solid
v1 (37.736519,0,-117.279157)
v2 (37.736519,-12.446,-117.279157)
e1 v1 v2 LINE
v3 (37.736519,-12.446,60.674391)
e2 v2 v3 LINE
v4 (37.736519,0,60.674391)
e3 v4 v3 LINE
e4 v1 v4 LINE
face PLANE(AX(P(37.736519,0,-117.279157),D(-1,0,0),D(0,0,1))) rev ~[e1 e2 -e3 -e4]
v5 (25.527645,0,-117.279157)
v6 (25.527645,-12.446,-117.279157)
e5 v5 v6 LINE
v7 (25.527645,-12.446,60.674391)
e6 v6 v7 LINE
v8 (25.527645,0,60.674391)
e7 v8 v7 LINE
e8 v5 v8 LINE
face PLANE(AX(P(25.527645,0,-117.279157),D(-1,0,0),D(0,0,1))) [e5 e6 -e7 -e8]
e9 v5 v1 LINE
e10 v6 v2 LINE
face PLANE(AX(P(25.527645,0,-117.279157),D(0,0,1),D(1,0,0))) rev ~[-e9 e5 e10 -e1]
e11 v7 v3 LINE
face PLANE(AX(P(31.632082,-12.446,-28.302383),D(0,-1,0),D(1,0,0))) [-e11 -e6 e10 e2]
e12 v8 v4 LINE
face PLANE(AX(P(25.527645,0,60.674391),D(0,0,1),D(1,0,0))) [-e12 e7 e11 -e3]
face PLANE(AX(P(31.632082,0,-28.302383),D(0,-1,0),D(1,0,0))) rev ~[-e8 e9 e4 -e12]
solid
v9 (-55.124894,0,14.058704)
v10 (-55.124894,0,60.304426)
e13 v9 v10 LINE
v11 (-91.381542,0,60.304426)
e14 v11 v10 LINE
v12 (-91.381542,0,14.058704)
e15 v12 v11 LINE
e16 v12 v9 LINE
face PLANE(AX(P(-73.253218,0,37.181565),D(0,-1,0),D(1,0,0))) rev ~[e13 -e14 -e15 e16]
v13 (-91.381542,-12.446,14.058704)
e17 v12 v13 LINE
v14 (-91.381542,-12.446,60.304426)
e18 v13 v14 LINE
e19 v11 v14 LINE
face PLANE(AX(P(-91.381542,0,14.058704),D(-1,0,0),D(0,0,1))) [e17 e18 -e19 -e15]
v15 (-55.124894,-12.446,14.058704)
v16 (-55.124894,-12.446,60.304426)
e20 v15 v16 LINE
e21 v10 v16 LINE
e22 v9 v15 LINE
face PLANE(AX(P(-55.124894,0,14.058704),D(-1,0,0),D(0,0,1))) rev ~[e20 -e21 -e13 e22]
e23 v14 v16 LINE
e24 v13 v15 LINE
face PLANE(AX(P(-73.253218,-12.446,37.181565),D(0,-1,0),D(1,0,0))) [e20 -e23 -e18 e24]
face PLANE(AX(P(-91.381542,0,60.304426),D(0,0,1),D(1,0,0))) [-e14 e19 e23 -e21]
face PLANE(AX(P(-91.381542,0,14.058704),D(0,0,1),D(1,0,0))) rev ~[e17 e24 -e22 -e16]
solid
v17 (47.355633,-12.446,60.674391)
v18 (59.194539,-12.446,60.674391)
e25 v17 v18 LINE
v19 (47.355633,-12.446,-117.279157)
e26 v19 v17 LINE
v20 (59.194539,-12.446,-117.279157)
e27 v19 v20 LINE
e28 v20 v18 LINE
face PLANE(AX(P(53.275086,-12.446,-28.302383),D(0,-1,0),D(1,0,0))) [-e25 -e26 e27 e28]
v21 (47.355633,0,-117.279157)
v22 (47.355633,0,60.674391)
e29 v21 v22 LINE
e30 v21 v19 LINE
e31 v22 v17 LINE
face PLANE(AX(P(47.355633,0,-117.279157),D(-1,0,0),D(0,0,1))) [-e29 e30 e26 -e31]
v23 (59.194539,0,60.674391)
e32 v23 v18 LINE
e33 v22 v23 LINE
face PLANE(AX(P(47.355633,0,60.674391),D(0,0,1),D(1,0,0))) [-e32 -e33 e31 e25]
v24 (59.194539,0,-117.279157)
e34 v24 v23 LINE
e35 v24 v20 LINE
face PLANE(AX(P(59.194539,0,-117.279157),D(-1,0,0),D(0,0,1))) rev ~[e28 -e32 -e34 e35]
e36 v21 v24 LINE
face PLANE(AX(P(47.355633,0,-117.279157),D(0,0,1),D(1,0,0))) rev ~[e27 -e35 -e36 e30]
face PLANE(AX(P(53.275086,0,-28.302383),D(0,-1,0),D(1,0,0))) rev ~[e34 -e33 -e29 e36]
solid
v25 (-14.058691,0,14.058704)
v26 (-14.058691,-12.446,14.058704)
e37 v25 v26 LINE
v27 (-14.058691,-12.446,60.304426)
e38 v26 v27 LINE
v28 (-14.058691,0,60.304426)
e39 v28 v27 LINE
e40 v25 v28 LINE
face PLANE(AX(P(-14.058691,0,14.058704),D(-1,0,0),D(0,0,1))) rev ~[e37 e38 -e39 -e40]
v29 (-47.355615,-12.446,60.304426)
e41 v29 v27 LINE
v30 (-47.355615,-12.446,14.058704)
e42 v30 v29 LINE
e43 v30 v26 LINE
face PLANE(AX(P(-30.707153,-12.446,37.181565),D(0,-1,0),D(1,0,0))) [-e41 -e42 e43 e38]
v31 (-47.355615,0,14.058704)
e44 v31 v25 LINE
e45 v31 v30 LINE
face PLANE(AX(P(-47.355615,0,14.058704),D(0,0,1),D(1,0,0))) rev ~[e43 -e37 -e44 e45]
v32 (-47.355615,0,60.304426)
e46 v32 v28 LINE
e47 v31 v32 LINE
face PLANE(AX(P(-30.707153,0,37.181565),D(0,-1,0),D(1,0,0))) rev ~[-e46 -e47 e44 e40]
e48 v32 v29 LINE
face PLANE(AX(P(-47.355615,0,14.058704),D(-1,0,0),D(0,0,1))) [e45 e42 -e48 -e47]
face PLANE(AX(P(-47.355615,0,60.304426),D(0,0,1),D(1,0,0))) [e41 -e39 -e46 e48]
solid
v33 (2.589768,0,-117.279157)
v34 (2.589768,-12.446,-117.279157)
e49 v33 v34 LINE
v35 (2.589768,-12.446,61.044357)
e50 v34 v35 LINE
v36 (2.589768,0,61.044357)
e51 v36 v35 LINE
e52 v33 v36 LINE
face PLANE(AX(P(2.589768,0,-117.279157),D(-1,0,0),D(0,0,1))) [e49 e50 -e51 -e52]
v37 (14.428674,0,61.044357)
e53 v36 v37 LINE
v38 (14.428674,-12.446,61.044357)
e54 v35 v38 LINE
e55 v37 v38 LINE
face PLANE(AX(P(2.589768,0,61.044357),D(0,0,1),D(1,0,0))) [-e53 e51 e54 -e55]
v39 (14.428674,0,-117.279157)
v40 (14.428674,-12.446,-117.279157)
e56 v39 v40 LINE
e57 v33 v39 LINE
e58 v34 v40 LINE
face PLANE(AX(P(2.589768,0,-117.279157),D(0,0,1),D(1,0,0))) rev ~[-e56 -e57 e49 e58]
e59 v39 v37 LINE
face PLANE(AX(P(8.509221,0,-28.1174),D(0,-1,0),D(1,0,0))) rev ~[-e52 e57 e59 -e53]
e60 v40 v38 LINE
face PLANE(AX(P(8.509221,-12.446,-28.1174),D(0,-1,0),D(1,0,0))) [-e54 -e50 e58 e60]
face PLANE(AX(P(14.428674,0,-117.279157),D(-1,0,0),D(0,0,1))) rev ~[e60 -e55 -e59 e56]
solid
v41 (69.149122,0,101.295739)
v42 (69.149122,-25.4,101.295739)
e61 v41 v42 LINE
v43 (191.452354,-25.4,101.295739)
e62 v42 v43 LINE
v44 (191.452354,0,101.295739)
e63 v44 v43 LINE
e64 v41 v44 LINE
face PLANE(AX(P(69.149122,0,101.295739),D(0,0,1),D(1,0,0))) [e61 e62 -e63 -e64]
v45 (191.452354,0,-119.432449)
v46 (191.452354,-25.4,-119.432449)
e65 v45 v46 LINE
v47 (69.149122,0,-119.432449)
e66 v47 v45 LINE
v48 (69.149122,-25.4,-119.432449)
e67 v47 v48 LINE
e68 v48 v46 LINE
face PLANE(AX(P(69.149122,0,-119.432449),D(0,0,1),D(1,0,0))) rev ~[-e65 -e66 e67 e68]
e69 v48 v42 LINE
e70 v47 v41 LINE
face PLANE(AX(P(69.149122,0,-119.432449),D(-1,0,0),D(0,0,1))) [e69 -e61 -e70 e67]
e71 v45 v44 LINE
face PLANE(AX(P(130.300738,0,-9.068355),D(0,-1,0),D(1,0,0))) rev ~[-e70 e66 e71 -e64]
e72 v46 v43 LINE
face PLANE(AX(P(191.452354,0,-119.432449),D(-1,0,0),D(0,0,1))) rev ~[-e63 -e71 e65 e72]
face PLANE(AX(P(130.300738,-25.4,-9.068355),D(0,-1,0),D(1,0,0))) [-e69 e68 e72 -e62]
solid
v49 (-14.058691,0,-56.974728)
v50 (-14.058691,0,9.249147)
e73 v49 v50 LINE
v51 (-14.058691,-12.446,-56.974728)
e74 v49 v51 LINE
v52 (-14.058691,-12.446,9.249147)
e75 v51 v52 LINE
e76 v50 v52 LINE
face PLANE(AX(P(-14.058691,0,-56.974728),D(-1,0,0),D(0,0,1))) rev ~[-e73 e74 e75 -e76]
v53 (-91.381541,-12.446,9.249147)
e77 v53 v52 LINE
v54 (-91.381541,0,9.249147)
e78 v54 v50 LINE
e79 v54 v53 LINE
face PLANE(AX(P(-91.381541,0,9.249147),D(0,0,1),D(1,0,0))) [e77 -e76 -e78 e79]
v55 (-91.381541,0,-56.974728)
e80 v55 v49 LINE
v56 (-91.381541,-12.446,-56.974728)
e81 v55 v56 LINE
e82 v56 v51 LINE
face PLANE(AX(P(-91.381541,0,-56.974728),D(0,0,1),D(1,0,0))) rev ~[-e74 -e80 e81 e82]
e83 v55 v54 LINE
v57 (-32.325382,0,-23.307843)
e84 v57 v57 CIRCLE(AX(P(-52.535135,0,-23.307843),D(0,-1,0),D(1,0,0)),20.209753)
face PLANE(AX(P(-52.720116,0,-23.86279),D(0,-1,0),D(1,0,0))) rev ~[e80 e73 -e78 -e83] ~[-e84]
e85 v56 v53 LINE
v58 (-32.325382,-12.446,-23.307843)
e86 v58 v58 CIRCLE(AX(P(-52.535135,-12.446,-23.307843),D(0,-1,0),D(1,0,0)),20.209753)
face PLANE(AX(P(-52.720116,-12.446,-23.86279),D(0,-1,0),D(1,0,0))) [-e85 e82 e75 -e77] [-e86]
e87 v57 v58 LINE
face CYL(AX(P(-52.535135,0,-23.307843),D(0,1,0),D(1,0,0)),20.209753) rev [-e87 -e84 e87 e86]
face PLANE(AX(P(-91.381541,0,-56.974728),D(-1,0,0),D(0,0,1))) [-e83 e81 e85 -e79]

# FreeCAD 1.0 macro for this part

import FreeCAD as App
import Part
import Sketcher

V = App.Vector
Q = App.Units.Quantity

doc = App.newDocument("Part")
body = doc.addObject("PartDesign::Body", "Body")
body.AllowCompound = True

# Sketch on XZ plane
sketch1 = body.newObject("Sketcher::SketchObject", "Sketch")
sketch1.AttachmentSupport = (doc.getObject("XZ_Plane"), [""])
sketch1.MapMode = "FlatFace"
sketch1.addGeometry(Part.LineSegment(V(-91, 60, 0), V(-91, 14, 0)), False)
sketch1.addGeometry(Part.LineSegment(V(-91, 14, 0), V(-55, 14, 0)), False)
sketch1.addGeometry(Part.LineSegment(V(-55, 14, 0), V(-55, 60, 0)), False)
sketch1.addGeometry(Part.LineSegment(V(-55, 60, 0), V(-91, 60, 0)), False)
sketch1.addGeometry(Part.LineSegment(V(-47, 60, 0), V(-47, 14, 0)), False)
sketch1.addGeometry(Part.LineSegment(V(-47, 14, 0), V(-14, 14, 0)), False)
sketch1.addGeometry(Part.LineSegment(V(-14, 14, 0), V(-14, 60, 0)), False)
sketch1.addGeometry(Part.LineSegment(V(-14, 60, 0), V(-47, 60, 0)), False)
sketch1.addGeometry(Part.LineSegment(V(3, 61, 0), V(3, -117, 0)), False)
sketch1.addGeometry(Part.LineSegment(V(3, -117, 0), V(14, -117, 0)), False)
sketch1.addGeometry(Part.LineSegment(V(14, -117, 0), V(14, 61, 0)), False)
sketch1.addGeometry(Part.LineSegment(V(14, 61, 0), V(3, 61, 0)), False)
sketch1.addGeometry(Part.LineSegment(V(26, 61, 0), V(26, -117, 0)), False)
sketch1.addGeometry(Part.LineSegment(V(26, -117, 0), V(38, -117, 0)), False)
sketch1.addGeometry(Part.LineSegment(V(38, -117, 0), V(38, 61, 0)), False)
sketch1.addGeometry(Part.LineSegment(V(38, 61, 0), V(26, 61, 0)), False)
sketch1.addGeometry(Part.LineSegment(V(47, 61, 0), V(47, -117, 0)), False)
sketch1.addGeometry(Part.LineSegment(V(47, -117, 0), V(59, -117, 0)), False)
sketch1.addGeometry(Part.LineSegment(V(59, -117, 0), V(59, 61, 0)), False)
sketch1.addGeometry(Part.LineSegment(V(59, 61, 0), V(47, 61, 0)), False)
sketch1.addGeometry(Part.LineSegment(V(-91, 9, 0), V(-91, -57, 0)), False)
sketch1.addGeometry(Part.LineSegment(V(-91, -57, 0), V(-14, -57, 0)), False)
sketch1.addGeometry(Part.LineSegment(V(-14, -57, 0), V(-14, 9, 0)), False)
sketch1.addGeometry(Part.LineSegment(V(-14, 9, 0), V(-91, 9, 0)), False)
sketch1.addGeometry(Part.Circle(V(-53, -23, 0), V(0, 0, 1), 20), False)
sketch1.addConstraint(Sketcher.Constraint("Coincident", 0, 2, 1, 1))
sketch1.addConstraint(Sketcher.Constraint("Coincident", 1, 2, 2, 1))
sketch1.addConstraint(Sketcher.Constraint("Coincident", 2, 2, 3, 1))
sketch1.addConstraint(Sketcher.Constraint("Coincident", 3, 2, 0, 1))
sketch1.addConstraint(Sketcher.Constraint("Coincident", 4, 2, 5, 1))
sketch1.addConstraint(Sketcher.Constraint("Coincident", 5, 2, 6, 1))
sketch1.addConstraint(Sketcher.Constraint("Coincident", 6, 2, 7, 1))
sketch1.addConstraint(Sketcher.Constraint("Coincident", 7, 2, 4, 1))
sketch1.addConstraint(Sketcher.Constraint("Coincident", 8, 2, 9, 1))
sketch1.addConstraint(Sketcher.Constraint("Coincident", 9, 2, 10, 1))
sketch1.addConstraint(Sketcher.Constraint("Coincident", 10, 2, 11, 1))
sketch1.addConstraint(Sketcher.Constraint("Coincident", 11, 2, 8, 1))
sketch1.addConstraint(Sketcher.Constraint("Coincident", 12, 2, 13, 1))
sketch1.addConstraint(Sketcher.Constraint("Coincident", 13, 2, 14, 1))
sketch1.addConstraint(Sketcher.Constraint("Coincident", 14, 2, 15, 1))
sketch1.addConstraint(Sketcher.Constraint("Coincident", 15, 2, 12, 1))
sketch1.addConstraint(Sketcher.Constraint("Coincident", 16, 2, 17, 1))
sketch1.addConstraint(Sketcher.Constraint("Coincident", 17, 2, 18, 1))
sketch1.addConstraint(Sketcher.Constraint("Coincident", 18, 2, 19, 1))
sketch1.addConstraint(Sketcher.Constraint("Coincident", 19, 2, 16, 1))
sketch1.addConstraint(Sketcher.Constraint("Coincident", 20, 2, 21, 1))
sketch1.addConstraint(Sketcher.Constraint("Coincident", 21, 2, 22, 1))
sketch1.addConstraint(Sketcher.Constraint("Coincident", 22, 2, 23, 1))
sketch1.addConstraint(Sketcher.Constraint("Coincident", 23, 2, 20, 1))
sketch1.addConstraint(Sketcher.Constraint("Vertical", 0))
sketch1.addConstraint(Sketcher.Constraint("Horizontal", 1))
sketch1.addConstraint(Sketcher.Constraint("Vertical", 2))
sketch1.addConstraint(Sketcher.Constraint("Horizontal", 3))
sketch1.addConstraint(Sketcher.Constraint("Vertical", 4))
sketch1.addConstraint(Sketcher.Constraint("Horizontal", 5))
sketch1.addConstraint(Sketcher.Constraint("Vertical", 6))
sketch1.addConstraint(Sketcher.Constraint("Horizontal", 7))
sketch1.addConstraint(Sketcher.Constraint("Vertical", 8))
sketch1.addConstraint(Sketcher.Constraint("Horizontal", 9))
sketch1.addConstraint(Sketcher.Constraint("Vertical", 10))
sketch1.addConstraint(Sketcher.Constraint("Horizontal", 11))
sketch1.addConstraint(Sketcher.Constraint("Vertical", 12))
sketch1.addConstraint(Sketcher.Constraint("Horizontal", 13))
sketch1.addConstraint(Sketcher.Constraint("Vertical", 14))
sketch1.addConstraint(Sketcher.Constraint("Horizontal", 15))
sketch1.addConstraint(Sketcher.Constraint("Vertical", 16))
sketch1.addConstraint(Sketcher.Constraint("Horizontal", 17))
sketch1.addConstraint(Sketcher.Constraint("Vertical", 18))
sketch1.addConstraint(Sketcher.Constraint("Horizontal", 19))
sketch1.addConstraint(Sketcher.Constraint("Vertical", 20))
sketch1.addConstraint(Sketcher.Constraint("Horizontal", 21))
sketch1.addConstraint(Sketcher.Constraint("Vertical", 22))
sketch1.addConstraint(Sketcher.Constraint("Horizontal", 23))
sketch1.addConstraint(Sketcher.Constraint("Horizontal", 1, 2, 4, 2))
sketch1.addConstraint(Sketcher.Constraint("Horizontal", 3, 2, 6, 2))
sketch1.addConstraint(Sketcher.Constraint("Horizontal", 9, 2, 12, 2))
sketch1.addConstraint(Sketcher.Constraint("Horizontal", 13, 2, 16, 2))
sketch1.addConstraint(Sketcher.Constraint("Horizontal", 15, 2, 18, 2))
sketch1.addConstraint(Sketcher.Constraint("Vertical", 3, 2, 20, 2))
sketch1.addConstraint(Sketcher.Constraint("Vertical", 6, 2, 21, 2))
sketch1.addConstraint(Sketcher.Constraint("Equal", 11, 17))
sketch1.addConstraint(Sketcher.Constraint("Diameter", 24, Q("40.419506 mm")))
sketch1.addConstraint(Sketcher.Constraint("DistanceX", 21, 1, 21, 2, Q("77.322851 mm")))
sketch1.addConstraint(Sketcher.Constraint("DistanceY", 12, 2, 12, 1, Q("177.953549 mm")))
sketch1.addConstraint(Sketcher.Constraint("DistanceX", 1, 1, 1, 2, Q("36.256648 mm")))
sketch1.addConstraint(Sketcher.Constraint("DistanceX", 5, 1, 5, 2, Q("33.296924 mm")))
sketch1.addConstraint(Sketcher.Constraint("DistanceX", 9, 1, 9, 2, Q("11.838905 mm")))
sketch1.addConstraint(Sketcher.Constraint("DistanceX", 13, 1, 13, 2, Q("12.208875 mm")))
sketch1.addConstraint(Sketcher.Constraint("DistanceY", 0, 2, 0, 1, Q("46.245723 mm")))
sketch1.addConstraint(Sketcher.Constraint("DistanceY", 8, 2, 8, 1, Q("178.323515 mm")))
sketch1.addConstraint(Sketcher.Constraint("DistanceY", 20, 2, 20, 1, Q("66.223875 mm")))
sketch1.addConstraint(Sketcher.Constraint("DistanceX", 0, 2, -1, 1, Q("91.381542 mm")))
sketch1.addConstraint(Sketcher.Constraint("DistanceX", -1, 1, 8, 2, Q("2.589768 mm")))
sketch1.addConstraint(Sketcher.Constraint("DistanceX", -1, 1, 13, 2, Q("37.736519 mm")))
sketch1.addConstraint(Sketcher.Constraint("DistanceY", -1, 1, 14, 2, Q("60.674391 mm")))
sketch1.addConstraint(Sketcher.Constraint("DistanceX", -1, 1, 17, 2, Q("59.194539 mm")))
sketch1.addConstraint(Sketcher.Constraint("DistanceX", 1, 2, 24, 3, Q("2.589759 mm")))
sketch1.addConstraint(Sketcher.Constraint("DistanceY", 24, 3, 2, 2, Q("83.612269 mm")))
sketch1.addConstraint(Sketcher.Constraint("DistanceY", 8, 2, 5, 2, Q("131.337861 mm")))
sketch1.addConstraint(Sketcher.Constraint("DistanceY", 20, 2, 0, 2, Q("71.033431 mm")))
pad1 = body.newObject("PartDesign::Pad", "Pad")
pad1.Profile = sketch1
pad1.Length = Q("0.49 in")
body2 = doc.addObject("PartDesign::Body", "Body001")

# Sketch on XZ plane
sketch2 = body2.newObject("Sketcher::SketchObject", "Sketch001")
sketch2.AttachmentSupport = (doc.getObject("XZ_Plane001"), [""])
sketch2.MapMode = "FlatFace"
sketch2.addGeometry(Part.LineSegment(V(69, 101, 0), V(69, -119, 0)), False)
sketch2.addGeometry(Part.LineSegment(V(69, -119, 0), V(191, -119, 0)), False)
sketch2.addGeometry(Part.LineSegment(V(191, -119, 0), V(191, 101, 0)), False)
sketch2.addGeometry(Part.LineSegment(V(191, 101, 0), V(69, 101, 0)), False)
sketch2.addConstraint(Sketcher.Constraint("Coincident", 0, 2, 1, 1))
sketch2.addConstraint(Sketcher.Constraint("Coincident", 1, 2, 2, 1))
sketch2.addConstraint(Sketcher.Constraint("Coincident", 2, 2, 3, 1))
sketch2.addConstraint(Sketcher.Constraint("Coincident", 3, 2, 0, 1))
sketch2.addConstraint(Sketcher.Constraint("Vertical", 0))
sketch2.addConstraint(Sketcher.Constraint("Horizontal", 1))
sketch2.addConstraint(Sketcher.Constraint("Vertical", 2))
sketch2.addConstraint(Sketcher.Constraint("Horizontal", 3))
sketch2.addConstraint(Sketcher.Constraint("DistanceX", 1, 1, 1, 2, Q("122.303232 mm")))
sketch2.addConstraint(Sketcher.Constraint("DistanceY", 0, 2, 0, 1, Q("220.728188 mm")))
sketch2.addConstraint(Sketcher.Constraint("DistanceY", 0, 2, -1, 1, Q("119.432449 mm")))
sketch2.addConstraint(Sketcher.Constraint("DistanceX", -1, 1, 0, 2, Q("69.149122 mm")))
pad2 = body2.newObject("PartDesign::Pad", "Pad001")
pad2.Profile = sketch2
pad2.Length = Q("1 in")

doc.recompute()
